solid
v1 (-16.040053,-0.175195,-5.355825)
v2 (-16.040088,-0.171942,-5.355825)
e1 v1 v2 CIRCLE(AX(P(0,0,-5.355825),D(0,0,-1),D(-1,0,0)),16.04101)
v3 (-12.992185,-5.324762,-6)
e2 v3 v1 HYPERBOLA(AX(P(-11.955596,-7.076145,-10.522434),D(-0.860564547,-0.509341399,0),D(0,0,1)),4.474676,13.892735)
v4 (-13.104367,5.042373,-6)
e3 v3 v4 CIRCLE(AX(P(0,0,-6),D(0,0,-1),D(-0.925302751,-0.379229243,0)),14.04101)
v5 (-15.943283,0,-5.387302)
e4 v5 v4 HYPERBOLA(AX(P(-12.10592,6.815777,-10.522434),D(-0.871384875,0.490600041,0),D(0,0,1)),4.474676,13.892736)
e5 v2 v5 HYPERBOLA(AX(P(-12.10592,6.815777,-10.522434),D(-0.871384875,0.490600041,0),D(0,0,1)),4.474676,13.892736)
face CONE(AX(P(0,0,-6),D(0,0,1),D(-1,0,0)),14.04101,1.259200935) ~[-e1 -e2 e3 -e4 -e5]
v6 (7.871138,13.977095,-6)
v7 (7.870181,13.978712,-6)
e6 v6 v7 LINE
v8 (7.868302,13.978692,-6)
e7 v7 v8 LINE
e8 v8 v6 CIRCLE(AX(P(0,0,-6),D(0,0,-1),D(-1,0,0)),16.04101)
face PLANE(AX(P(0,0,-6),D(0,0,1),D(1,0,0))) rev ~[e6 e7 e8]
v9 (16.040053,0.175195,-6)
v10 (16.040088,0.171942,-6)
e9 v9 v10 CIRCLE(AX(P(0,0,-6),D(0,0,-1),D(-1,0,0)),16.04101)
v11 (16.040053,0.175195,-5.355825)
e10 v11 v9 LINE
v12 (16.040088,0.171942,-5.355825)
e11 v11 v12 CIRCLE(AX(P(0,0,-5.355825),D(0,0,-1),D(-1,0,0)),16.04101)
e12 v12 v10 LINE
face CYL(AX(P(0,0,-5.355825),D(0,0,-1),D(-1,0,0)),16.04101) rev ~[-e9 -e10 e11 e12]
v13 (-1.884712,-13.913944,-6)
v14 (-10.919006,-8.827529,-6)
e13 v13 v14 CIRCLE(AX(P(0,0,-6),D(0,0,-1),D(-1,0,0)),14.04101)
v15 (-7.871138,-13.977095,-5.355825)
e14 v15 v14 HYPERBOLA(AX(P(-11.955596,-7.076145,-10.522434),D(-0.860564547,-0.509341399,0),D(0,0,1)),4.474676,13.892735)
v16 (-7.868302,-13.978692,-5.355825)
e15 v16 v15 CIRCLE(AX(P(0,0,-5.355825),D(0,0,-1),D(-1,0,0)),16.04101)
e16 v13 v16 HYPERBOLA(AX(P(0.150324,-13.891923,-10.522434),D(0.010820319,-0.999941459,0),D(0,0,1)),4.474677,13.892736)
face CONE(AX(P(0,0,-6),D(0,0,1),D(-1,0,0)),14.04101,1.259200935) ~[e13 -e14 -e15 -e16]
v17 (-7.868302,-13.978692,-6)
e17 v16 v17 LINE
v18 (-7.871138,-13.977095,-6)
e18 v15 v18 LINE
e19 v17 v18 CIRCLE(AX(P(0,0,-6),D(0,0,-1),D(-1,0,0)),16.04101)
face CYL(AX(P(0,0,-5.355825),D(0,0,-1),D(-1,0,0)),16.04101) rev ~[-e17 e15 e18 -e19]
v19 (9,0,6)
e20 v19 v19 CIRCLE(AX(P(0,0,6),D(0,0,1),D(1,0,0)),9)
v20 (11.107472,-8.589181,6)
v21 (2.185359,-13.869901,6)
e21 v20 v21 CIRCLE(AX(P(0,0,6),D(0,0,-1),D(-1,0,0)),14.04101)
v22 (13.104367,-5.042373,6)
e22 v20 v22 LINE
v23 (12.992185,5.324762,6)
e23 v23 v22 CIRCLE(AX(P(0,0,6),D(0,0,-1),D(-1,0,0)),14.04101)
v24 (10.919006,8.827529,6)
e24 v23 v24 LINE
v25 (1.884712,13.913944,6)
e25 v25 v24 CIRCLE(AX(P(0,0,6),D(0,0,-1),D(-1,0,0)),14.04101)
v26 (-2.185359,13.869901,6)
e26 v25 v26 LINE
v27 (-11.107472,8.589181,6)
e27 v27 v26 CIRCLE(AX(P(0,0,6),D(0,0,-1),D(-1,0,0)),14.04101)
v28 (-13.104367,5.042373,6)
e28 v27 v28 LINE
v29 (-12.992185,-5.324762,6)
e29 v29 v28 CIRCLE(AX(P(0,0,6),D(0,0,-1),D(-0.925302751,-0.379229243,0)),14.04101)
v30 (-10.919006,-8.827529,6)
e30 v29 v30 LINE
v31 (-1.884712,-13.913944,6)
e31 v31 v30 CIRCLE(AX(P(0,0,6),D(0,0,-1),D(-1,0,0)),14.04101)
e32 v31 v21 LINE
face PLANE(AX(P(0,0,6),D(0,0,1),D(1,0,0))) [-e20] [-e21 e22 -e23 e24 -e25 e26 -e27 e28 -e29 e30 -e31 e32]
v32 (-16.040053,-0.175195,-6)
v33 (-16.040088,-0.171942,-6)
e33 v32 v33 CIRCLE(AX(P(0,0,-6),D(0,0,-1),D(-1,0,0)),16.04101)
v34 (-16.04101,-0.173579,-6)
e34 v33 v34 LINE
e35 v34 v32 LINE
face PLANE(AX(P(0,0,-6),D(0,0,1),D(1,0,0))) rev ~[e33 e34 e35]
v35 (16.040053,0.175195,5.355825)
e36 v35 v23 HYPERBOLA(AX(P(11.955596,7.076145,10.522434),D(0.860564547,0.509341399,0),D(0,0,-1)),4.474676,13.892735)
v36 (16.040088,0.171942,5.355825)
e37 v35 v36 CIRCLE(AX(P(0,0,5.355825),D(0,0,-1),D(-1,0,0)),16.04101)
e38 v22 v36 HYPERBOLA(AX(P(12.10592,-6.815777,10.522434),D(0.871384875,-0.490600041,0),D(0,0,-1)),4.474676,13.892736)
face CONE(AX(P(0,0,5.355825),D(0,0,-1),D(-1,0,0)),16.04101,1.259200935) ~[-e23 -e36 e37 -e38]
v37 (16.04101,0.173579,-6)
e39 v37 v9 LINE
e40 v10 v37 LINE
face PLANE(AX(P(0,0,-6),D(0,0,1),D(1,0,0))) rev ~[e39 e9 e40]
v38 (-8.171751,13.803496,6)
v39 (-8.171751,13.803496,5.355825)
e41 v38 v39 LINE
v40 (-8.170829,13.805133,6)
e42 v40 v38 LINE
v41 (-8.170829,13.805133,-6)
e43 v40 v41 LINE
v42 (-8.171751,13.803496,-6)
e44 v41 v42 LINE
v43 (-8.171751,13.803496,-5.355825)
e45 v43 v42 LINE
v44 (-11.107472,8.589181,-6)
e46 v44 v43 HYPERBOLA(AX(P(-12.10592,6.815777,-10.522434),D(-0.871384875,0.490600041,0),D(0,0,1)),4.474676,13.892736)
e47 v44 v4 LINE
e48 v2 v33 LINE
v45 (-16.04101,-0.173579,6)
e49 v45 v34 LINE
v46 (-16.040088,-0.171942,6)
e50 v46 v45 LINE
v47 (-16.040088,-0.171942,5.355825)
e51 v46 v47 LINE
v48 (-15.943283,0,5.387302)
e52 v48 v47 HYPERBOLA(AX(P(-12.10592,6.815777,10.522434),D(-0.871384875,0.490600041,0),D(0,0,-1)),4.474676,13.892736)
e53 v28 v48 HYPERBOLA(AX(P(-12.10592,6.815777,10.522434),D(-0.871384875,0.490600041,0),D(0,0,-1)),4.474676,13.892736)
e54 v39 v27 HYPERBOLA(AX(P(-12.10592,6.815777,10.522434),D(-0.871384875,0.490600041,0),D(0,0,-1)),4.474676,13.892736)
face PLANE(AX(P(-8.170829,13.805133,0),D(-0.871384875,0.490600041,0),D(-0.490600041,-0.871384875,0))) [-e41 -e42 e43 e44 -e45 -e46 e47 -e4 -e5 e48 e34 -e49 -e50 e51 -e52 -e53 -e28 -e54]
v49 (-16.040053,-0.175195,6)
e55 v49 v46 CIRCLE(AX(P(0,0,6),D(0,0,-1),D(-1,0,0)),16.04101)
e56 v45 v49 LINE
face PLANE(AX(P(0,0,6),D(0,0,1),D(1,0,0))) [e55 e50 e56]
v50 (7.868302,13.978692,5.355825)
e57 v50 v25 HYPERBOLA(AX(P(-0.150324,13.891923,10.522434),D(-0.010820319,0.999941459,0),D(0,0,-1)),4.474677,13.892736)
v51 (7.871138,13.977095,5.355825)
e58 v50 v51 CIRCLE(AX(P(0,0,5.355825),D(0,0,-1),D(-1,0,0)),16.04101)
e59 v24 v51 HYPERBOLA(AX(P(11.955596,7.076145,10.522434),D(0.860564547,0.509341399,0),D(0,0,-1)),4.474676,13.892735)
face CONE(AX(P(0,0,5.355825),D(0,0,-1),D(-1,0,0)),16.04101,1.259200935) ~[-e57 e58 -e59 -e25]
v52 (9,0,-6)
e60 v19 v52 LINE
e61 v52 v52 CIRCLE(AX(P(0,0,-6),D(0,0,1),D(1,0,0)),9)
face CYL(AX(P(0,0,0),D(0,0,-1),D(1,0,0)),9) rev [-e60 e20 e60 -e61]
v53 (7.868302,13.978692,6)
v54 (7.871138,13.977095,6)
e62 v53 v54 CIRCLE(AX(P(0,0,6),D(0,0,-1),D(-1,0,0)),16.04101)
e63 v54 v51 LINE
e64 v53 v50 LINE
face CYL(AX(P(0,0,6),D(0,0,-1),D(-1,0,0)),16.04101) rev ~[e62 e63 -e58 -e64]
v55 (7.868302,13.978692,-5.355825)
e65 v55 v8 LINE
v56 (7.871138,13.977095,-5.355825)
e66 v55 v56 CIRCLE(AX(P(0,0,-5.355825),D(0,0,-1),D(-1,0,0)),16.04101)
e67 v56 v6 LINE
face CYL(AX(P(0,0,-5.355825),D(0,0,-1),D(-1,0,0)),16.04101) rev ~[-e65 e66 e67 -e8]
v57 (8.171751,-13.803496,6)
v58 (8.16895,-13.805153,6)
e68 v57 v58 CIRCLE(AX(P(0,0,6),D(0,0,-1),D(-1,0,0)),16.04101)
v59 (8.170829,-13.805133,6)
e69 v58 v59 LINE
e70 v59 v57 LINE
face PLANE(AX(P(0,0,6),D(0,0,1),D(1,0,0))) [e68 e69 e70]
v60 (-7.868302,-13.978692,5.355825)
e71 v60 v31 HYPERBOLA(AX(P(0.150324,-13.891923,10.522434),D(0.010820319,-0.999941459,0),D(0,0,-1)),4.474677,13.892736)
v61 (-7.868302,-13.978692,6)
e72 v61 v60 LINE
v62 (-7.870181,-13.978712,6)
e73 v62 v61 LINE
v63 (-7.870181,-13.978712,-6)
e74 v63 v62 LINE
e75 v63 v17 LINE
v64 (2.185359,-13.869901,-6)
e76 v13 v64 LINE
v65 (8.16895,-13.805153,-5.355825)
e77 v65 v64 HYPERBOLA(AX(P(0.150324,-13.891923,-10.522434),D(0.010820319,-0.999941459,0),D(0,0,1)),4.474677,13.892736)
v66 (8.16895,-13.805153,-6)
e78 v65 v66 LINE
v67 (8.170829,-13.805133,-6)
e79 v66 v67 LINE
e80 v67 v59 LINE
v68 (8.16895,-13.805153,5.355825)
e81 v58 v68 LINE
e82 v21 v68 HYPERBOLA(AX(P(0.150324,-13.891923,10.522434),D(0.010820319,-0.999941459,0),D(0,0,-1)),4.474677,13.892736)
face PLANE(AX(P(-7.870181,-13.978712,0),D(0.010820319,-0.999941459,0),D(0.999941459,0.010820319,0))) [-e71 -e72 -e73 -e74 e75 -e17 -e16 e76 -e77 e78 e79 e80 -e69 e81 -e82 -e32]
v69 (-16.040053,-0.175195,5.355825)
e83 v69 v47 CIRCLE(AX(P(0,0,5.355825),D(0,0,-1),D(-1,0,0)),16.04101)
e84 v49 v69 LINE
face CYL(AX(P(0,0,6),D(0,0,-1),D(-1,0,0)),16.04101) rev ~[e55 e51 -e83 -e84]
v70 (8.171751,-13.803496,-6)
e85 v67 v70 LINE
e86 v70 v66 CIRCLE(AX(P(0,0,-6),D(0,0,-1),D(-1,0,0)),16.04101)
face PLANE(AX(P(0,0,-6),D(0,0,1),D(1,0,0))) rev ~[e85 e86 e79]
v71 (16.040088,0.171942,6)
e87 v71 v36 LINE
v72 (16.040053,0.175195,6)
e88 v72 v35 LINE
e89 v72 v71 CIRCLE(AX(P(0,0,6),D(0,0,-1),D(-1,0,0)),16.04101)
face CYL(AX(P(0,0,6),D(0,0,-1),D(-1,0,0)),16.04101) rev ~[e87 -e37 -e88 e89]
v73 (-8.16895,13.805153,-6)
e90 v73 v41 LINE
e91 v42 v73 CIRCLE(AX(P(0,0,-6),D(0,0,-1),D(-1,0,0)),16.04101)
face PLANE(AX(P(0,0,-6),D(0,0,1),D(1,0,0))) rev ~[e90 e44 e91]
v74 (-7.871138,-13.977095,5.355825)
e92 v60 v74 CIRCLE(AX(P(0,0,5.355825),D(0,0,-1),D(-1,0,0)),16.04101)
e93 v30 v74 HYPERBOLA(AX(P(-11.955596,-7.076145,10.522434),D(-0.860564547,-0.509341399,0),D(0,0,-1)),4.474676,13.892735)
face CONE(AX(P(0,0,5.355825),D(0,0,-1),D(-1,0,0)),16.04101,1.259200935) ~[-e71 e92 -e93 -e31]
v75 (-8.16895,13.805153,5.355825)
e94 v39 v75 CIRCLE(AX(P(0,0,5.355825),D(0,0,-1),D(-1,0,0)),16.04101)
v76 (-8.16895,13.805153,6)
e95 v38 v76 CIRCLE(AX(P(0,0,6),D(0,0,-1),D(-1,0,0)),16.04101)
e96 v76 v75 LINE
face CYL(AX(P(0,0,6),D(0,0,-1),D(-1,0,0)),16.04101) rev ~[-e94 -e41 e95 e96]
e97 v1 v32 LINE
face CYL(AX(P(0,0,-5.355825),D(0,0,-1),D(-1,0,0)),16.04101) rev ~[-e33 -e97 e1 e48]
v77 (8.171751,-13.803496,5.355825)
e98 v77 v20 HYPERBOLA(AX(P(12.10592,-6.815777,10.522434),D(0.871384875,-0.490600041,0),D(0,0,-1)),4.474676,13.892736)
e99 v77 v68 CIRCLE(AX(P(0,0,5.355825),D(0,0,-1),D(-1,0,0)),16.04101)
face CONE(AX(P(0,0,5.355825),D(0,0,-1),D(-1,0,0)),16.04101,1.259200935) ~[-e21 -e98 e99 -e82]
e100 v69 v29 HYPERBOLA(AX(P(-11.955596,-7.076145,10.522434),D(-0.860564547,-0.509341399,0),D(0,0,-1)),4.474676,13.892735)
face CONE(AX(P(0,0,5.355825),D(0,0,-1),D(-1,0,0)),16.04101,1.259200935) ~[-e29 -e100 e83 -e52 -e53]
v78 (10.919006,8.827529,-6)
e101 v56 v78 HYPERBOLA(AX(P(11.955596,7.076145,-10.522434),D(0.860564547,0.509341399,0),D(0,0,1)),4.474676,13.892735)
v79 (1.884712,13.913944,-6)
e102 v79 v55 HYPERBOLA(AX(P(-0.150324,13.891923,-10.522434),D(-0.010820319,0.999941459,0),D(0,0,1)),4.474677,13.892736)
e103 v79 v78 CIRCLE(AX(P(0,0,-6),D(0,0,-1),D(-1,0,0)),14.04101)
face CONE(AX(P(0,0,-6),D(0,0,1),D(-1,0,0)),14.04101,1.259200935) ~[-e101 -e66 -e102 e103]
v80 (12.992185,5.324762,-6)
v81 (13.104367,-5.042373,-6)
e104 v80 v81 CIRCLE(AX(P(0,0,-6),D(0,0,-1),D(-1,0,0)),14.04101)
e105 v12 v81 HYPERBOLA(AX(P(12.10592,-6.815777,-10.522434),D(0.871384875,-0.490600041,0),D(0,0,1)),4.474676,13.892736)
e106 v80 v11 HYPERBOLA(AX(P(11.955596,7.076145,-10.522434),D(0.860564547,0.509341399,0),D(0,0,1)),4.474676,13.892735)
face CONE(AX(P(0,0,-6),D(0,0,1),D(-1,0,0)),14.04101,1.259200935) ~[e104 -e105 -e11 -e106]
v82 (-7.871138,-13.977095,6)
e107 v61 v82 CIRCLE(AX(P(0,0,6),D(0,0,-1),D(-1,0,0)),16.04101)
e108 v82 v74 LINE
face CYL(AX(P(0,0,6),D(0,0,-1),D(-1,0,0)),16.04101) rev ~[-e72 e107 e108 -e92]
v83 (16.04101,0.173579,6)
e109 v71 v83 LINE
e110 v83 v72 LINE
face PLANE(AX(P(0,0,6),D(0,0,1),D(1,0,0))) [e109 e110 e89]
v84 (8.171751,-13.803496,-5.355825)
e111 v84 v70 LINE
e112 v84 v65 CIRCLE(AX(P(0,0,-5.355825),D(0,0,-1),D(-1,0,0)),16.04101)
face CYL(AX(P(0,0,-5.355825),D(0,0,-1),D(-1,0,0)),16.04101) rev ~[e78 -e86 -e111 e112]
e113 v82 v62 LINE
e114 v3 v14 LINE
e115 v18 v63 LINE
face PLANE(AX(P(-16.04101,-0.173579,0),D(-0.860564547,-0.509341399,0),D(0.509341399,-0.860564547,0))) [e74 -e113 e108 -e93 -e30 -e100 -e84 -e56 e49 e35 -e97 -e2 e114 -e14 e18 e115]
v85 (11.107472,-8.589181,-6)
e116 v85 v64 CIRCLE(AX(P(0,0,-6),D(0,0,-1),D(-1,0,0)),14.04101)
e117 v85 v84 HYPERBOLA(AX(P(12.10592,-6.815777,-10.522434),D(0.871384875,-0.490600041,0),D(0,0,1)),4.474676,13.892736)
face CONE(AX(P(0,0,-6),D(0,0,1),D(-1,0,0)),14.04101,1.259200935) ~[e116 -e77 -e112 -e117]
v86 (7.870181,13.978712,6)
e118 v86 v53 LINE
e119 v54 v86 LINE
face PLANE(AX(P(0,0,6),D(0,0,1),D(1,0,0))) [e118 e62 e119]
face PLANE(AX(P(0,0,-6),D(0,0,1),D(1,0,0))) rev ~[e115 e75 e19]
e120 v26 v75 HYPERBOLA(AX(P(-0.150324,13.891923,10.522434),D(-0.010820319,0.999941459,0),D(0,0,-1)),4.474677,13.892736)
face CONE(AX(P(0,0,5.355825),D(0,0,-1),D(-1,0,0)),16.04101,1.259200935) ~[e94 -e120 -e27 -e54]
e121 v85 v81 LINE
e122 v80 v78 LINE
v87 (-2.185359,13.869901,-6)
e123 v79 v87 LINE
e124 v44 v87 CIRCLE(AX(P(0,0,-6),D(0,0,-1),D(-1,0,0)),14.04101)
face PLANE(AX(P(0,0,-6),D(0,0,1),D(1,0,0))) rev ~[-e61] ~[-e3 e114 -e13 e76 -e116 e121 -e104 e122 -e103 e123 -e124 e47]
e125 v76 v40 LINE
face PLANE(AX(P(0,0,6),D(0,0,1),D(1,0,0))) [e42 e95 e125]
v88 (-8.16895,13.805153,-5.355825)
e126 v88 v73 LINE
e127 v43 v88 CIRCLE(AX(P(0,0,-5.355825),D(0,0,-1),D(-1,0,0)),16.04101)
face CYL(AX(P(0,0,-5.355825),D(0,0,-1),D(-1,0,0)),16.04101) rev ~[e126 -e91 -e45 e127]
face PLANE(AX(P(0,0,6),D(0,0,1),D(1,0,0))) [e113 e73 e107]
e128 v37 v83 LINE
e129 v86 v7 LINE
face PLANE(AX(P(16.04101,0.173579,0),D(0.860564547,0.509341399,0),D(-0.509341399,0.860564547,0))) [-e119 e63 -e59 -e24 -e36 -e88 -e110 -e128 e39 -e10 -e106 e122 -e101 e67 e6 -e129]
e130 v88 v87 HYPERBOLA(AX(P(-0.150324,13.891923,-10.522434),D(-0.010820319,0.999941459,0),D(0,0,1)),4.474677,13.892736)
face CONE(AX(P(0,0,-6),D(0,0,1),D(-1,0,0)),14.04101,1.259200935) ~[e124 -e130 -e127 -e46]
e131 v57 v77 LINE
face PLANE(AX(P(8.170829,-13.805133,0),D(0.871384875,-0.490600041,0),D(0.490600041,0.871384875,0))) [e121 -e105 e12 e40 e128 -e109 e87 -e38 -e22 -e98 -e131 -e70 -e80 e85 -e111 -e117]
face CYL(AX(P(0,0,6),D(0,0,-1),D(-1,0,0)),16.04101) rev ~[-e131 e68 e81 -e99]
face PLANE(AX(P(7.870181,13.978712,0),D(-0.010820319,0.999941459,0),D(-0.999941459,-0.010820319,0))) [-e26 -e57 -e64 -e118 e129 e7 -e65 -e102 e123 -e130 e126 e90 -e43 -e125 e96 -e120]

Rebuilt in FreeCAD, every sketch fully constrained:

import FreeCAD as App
import Part
import Sketcher

V = App.Vector
Q = App.Units.Quantity


def add_polygon(sketch, points):
    """Adds a closed chain of lines whose ends are joined by coincident constraints."""
    first, n = sketch.GeometryCount, len(points)
    for a, b in zip(points, points[1:] + points[:1]):
        sketch.addGeometry(Part.LineSegment(App.Vector(*a, 0), App.Vector(*b, 0)), False)
    for i in range(n):
        sketch.addConstraint(Sketcher.Constraint("Coincident", first + i, 2, first + (i + 1) % n, 1))

doc = App.newDocument("Part")
params = doc.addObject("Spreadsheet::Sheet", "Params")
for row, (alias, value) in enumerate([
    ("sketch1_diameter", "18 mm"),
    ("pad1_length", "12 mm"),
    ("sketch2_width", "2 mm"),
    ("groove_angle", "360 deg"),
], start=1):
    params.set(f"A{row}", alias)
    params.set(f"B{row}", "=" + value)
    params.setAlias(f"B{row}", alias)

body = doc.addObject("PartDesign::Body", "Body")

sketch1 = doc.addObject("Sketcher::SketchObject", "Sketch")
body.addObject(sketch1)
sketch1.AttachmentSupport = (doc.XY_Plane, [""])
sketch1.MapMode = "FlatFace"
add_polygon(sketch1, [(-16, 0), (-8, -14), (8, -14), (16, 0), (8, 14), (-8, 14)])
sketch1.addGeometry(Part.Circle(V(0, 0, 0), V(0, 0, 1), 9), False)
sketch1.addConstraint([
    Sketcher.Constraint("Coincident", 6, 3, -1, 1),
    Sketcher.Constraint("Symmetric", 0, 2, 3, 2, -1, 1),
    Sketcher.Constraint("Symmetric", 1, 2, 4, 2, -1, 1),
    Sketcher.Constraint("Symmetric", 2, 2, 5, 2, -1, 1),
    Sketcher.Constraint("Equal", 0, 1),
    Sketcher.Constraint("Equal", 1, 2),
    Sketcher.Constraint("Diameter", 6, Q("18 mm")),
    Sketcher.Constraint("Distance", 0, Q("16.041949 mm")),
    Sketcher.Constraint("DistanceX", 0, 2, -1, 1, Q("7.870181 mm")),
    Sketcher.Constraint("DistanceX", -1, 1, 1, 2, Q("8.170829 mm")),
    Sketcher.Constraint("DistanceX", -1, 1, 2, 2, Q("16.04101 mm")),
])
sketch1.setExpression("Constraints[12]", "Params.sketch1_diameter")
pad1 = doc.addObject("PartDesign::Pad", "Pad")
body.addObject(pad1)
pad1.Profile = sketch1
pad1.setExpression("Length", "Params.pad1_length")
pad1.Midplane = True

sketch2 = doc.addObject("Sketcher::SketchObject", "Sketch001")
body.addObject(sketch2)
sketch2.AttachmentSupport = (doc.XZ_Plane, [""])
sketch2.MapMode = "FlatFace"
add_polygon(sketch2, [(-14, 6), (-16, 6), (-16, 5.4)])
add_polygon(sketch2, [(-14, -6), (-16, -5.4), (-16, -6)])
sketch2.addConstraint([
    Sketcher.Constraint("Horizontal", 0),
    Sketcher.Constraint("Vertical", 1),
    Sketcher.Constraint("Vertical", 4),
    Sketcher.Constraint("Horizontal", 5),
    Sketcher.Constraint("Symmetric", 1, 2, 3, 2, -1),
    Sketcher.Constraint("Symmetric", 2, 2, 5, 2, -1),
    Sketcher.Constraint("DistanceX", 0, 2, 0, 1, Q("2 mm")),
    Sketcher.Constraint("DistanceY", -1, 1, 0, 2, Q("6 mm")),
    Sketcher.Constraint("Distance", 2, Q("2.101181 mm")),
    Sketcher.Constraint("DistanceX", 0, 2, -1, 1, Q("16.04101 mm")),
])
sketch2.setExpression("Constraints[12]", "Params.sketch2_width")
groove = doc.addObject("PartDesign::Groove", "Groove")
body.addObject(groove)
groove.Profile = sketch2
groove.ReferenceAxis = (sketch2, ["V_Axis"])
groove.setExpression("Angle", "Params.groove_angle")

doc.recompute()
